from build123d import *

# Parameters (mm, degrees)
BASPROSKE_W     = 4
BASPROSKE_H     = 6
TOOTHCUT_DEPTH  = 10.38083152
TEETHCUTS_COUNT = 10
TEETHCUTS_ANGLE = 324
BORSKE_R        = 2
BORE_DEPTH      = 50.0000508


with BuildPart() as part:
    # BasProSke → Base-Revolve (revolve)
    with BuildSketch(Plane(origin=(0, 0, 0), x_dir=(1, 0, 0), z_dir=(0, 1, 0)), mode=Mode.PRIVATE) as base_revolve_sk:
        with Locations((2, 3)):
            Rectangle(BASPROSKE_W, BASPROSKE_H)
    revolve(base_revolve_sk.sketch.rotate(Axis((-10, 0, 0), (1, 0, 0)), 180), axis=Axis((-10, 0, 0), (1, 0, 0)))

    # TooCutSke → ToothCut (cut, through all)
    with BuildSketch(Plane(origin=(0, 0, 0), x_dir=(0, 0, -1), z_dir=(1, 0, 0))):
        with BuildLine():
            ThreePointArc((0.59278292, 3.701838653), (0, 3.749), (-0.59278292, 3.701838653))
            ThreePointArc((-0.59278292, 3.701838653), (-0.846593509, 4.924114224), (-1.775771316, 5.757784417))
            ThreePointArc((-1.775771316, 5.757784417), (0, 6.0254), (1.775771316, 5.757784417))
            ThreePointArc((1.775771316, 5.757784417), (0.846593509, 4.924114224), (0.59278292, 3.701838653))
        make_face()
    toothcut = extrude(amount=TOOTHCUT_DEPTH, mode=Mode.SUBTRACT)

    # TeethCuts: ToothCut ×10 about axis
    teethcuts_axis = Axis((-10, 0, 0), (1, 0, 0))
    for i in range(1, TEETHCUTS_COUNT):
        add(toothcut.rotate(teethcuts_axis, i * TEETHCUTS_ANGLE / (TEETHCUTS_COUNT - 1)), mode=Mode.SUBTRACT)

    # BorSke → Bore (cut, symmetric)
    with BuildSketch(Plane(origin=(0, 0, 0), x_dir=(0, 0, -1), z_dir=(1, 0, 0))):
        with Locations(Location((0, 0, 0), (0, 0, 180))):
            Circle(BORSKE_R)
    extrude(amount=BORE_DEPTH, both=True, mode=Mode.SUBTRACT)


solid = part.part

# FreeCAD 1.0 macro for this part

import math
import FreeCAD as App
import Part
import Sketcher

doc = App.newDocument("Part")
body = doc.addObject("PartDesign::Body", "Body")

sketch1 = body.newObject("Sketcher::SketchObject", "Sketch")
sketch1.AttachmentSupport = (doc.getObject("XZ_Plane"), [""])
sketch1.MapMode = "FlatFace"
sketch1.addGeometry([
    Part.LineSegment(App.Vector(0, -6, 0), App.Vector(0, 0, 0)),
    Part.LineSegment(App.Vector(0, 0, 0), App.Vector(4, 0, 0)),
    Part.LineSegment(App.Vector(4, 0, 0), App.Vector(4, -6, 0)),
    Part.LineSegment(App.Vector(4, -6, 0), App.Vector(0, -6, 0)),
], False)
sketch1.addConstraint([
    Sketcher.Constraint("Coincident", 0, 2, 1, 1),
    Sketcher.Constraint("Coincident", 1, 2, 2, 1),
    Sketcher.Constraint("Coincident", 2, 2, 3, 1),
    Sketcher.Constraint("Coincident", 3, 2, 0, 1),
    Sketcher.Constraint("Vertical", 0),
    Sketcher.Constraint("Horizontal", 1),
    Sketcher.Constraint("Vertical", 2),
    Sketcher.Constraint("Horizontal", 3),
    Sketcher.Constraint("Coincident", 0, 2, -1, 1),
    Sketcher.Constraint("DistanceX", 1, 1, 1, 2, 4.0),
    Sketcher.Constraint("DistanceY", 0, 1, 0, 2, 6.0),
])
revolution = body.newObject("PartDesign::Revolution", "Revolution")
revolution.Profile = sketch1
revolution.ReferenceAxis = (sketch1, ["H_Axis"])
revolution.Angle = 360

sketch2 = body.newObject("Sketcher::SketchObject", "Sketch001")
sketch2.AttachmentSupport = (doc.getObject("YZ_Plane"), [""])
sketch2.MapMode = "FlatFace"
sketch2.addGeometry([
    Part.ArcOfCircle(Part.Circle(App.Vector(0, 0, 0), App.Vector(0, 0, 1), 3.7), math.radians(-9.1), math.radians(9.1)),
    Part.ArcOfCircle(Part.Circle(App.Vector(3.9, -2.6, 0), App.Vector(0, 0, 1), 2), math.radians(24), math.radians(96)),
    Part.ArcOfCircle(Part.Circle(App.Vector(0, 0, 0), App.Vector(0, 0, 1), 6), math.radians(-17), math.radians(17)),
    Part.ArcOfCircle(Part.Circle(App.Vector(3.9, 2.6, 0), App.Vector(0, 0, 1), 2), math.radians(-96), math.radians(-24)),
], False)
sketch2.addConstraint([
    Sketcher.Constraint("Coincident", 0, 1, 1, 2),
    Sketcher.Constraint("Coincident", 1, 1, 2, 1),
    Sketcher.Constraint("Coincident", 2, 2, 3, 2),
    Sketcher.Constraint("Coincident", 3, 1, 0, 2),
    Sketcher.Constraint("Coincident", 0, 3, -1, 1),
    Sketcher.Constraint("Coincident", 2, 3, -1, 1),
    Sketcher.Constraint("Equal", 1, 3),
    Sketcher.Constraint("Symmetric", 1, 3, 3, 3, -1),
    Sketcher.Constraint("Radius", 1, 2.0),
    Sketcher.Constraint("Radius", 0, 3.749),
    Sketcher.Constraint("Radius", 2, 6.0254),
    Sketcher.Constraint("DistanceX", -1, 1, 0, 1, 3.701839),
    Sketcher.Constraint("DistanceY", 1, 1, -1, 1, 1.775771),
])
pocket1 = body.newObject("PartDesign::Pocket", "Pocket")
pocket1.Profile = sketch2
pocket1.Type = "ThroughAll"
pocket1.Reversed = True
doc.recompute()

polarpattern = body.newObject("PartDesign::PolarPattern", "PolarPattern")
polarpattern.Originals = [pocket1]
polarpattern.Axis = (doc.getObject("X_Axis"), [""])
polarpattern.Angle = 360
polarpattern.Occurrences = 10
body.Tip = polarpattern

sketch3 = body.newObject("Sketcher::SketchObject", "Sketch002")
sketch3.AttachmentSupport = (doc.getObject("YZ_Plane"), [""])
sketch3.MapMode = "FlatFace"
sketch3.addGeometry(Part.Circle(App.Vector(0, 0, 0), App.Vector(0, 0, 1), 2), False)
sketch3.addConstraint([
    Sketcher.Constraint("Coincident", 0, 3, -1, 1),
    Sketcher.Constraint("Diameter", 0, 4.0),
])
pocket2 = body.newObject("PartDesign::Pocket", "Pocket001")
pocket2.Profile = sketch3
pocket2.Length = 100.000102
pocket2.Midplane = True

doc.recompute()
